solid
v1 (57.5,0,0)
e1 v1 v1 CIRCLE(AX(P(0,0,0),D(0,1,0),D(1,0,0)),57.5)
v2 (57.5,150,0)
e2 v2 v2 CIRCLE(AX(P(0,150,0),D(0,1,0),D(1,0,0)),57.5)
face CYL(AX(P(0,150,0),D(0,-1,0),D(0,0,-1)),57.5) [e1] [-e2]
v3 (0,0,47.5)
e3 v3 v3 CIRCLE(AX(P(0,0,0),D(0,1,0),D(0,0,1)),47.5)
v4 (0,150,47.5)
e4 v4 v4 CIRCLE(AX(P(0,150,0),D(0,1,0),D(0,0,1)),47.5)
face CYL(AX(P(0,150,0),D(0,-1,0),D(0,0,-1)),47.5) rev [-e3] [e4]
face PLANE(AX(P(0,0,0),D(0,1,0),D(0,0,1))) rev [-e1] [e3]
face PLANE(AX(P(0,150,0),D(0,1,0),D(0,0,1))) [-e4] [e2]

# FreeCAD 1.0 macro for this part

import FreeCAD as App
import Part
import Sketcher

doc = App.newDocument("Part")
body = doc.addObject("PartDesign::Body", "Body")

# Sketch on XZ plane
sketch1 = body.newObject("Sketcher::SketchObject", "Sketch")
sketch1.AttachmentSupport = (doc.getObject("XZ_Plane"), [""])
sketch1.MapMode = "FlatFace"
sketch1.addGeometry([
    Part.Circle(App.Vector(0, 0, 0), App.Vector(0, 0, 1), 58),
    Part.Circle(App.Vector(0, 0, 0), App.Vector(0, 0, 1), 48),
], False)
sketch1.addConstraint([
    Sketcher.Constraint("Coincident", 0, 3, -1, 1),
    Sketcher.Constraint("Coincident", 1, 3, -1, 1),
    Sketcher.Constraint("Diameter", 0, 115.0),
    Sketcher.Constraint("Diameter", 1, 95.0),
])
pad1 = body.newObject("PartDesign::Pad", "Pad")
pad1.Profile = sketch1
pad1.Length = 150
pad1.Reversed = True

doc.recompute()
